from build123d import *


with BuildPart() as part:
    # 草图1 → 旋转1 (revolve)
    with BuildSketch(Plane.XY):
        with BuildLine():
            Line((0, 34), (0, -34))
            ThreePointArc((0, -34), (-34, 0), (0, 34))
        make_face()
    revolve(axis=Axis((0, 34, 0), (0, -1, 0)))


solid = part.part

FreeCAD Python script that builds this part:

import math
import FreeCAD as App
import Part
import Sketcher
from FreeCAD import Vector
Q = App.Units.Quantity

doc = App.newDocument("Part")
params = doc.addObject("Spreadsheet::Sheet", "Params")
for row, (alias, value) in enumerate([
    ("sketch1_radius", "34 mm"),
    ("revolution_angle", "360 deg"),
], start=1):
    params.set(f"A{row}", alias)
    params.set(f"B{row}", "=" + value)
    params.setAlias(f"B{row}", alias)

body = doc.addObject("PartDesign::Body", "Body")

# Sketch on XY plane
sketch1 = body.newObject("Sketcher::SketchObject", "Sketch")
sketch1.AttachmentSupport = (doc.getObject("XY_Plane"), [""])
sketch1.MapMode = "FlatFace"
sketch1.addGeometry([
    Part.LineSegment(Vector(0, -34, 0), Vector(0, 34, 0)),
    Part.ArcOfCircle(Part.Circle(Vector(0, 0, 0), Vector(0, 0, 1), 34), math.radians(90), math.radians(270)),
], False)
sketch1.addConstraint([
    Sketcher.Constraint("Coincident", 0, 1, 1, 2),
    Sketcher.Constraint("Coincident", 1, 1, 0, 2),
    Sketcher.Constraint("Vertical", 0),
    Sketcher.Constraint("Coincident", 1, 3, -1, 1),
    Sketcher.Constraint("PointOnObject", 0, 1, -2),
    Sketcher.Constraint("Radius", 1, Q("34 mm")),
])
sketch1.setExpression("Constraints[5]", "Params.sketch1_radius")
revolution = body.newObject("PartDesign::Revolution", "Revolution")
revolution.Profile = sketch1
revolution.ReferenceAxis = (sketch1, ["V_Axis"])
revolution.setExpression("Angle", "Params.revolution_angle")

doc.recompute()
